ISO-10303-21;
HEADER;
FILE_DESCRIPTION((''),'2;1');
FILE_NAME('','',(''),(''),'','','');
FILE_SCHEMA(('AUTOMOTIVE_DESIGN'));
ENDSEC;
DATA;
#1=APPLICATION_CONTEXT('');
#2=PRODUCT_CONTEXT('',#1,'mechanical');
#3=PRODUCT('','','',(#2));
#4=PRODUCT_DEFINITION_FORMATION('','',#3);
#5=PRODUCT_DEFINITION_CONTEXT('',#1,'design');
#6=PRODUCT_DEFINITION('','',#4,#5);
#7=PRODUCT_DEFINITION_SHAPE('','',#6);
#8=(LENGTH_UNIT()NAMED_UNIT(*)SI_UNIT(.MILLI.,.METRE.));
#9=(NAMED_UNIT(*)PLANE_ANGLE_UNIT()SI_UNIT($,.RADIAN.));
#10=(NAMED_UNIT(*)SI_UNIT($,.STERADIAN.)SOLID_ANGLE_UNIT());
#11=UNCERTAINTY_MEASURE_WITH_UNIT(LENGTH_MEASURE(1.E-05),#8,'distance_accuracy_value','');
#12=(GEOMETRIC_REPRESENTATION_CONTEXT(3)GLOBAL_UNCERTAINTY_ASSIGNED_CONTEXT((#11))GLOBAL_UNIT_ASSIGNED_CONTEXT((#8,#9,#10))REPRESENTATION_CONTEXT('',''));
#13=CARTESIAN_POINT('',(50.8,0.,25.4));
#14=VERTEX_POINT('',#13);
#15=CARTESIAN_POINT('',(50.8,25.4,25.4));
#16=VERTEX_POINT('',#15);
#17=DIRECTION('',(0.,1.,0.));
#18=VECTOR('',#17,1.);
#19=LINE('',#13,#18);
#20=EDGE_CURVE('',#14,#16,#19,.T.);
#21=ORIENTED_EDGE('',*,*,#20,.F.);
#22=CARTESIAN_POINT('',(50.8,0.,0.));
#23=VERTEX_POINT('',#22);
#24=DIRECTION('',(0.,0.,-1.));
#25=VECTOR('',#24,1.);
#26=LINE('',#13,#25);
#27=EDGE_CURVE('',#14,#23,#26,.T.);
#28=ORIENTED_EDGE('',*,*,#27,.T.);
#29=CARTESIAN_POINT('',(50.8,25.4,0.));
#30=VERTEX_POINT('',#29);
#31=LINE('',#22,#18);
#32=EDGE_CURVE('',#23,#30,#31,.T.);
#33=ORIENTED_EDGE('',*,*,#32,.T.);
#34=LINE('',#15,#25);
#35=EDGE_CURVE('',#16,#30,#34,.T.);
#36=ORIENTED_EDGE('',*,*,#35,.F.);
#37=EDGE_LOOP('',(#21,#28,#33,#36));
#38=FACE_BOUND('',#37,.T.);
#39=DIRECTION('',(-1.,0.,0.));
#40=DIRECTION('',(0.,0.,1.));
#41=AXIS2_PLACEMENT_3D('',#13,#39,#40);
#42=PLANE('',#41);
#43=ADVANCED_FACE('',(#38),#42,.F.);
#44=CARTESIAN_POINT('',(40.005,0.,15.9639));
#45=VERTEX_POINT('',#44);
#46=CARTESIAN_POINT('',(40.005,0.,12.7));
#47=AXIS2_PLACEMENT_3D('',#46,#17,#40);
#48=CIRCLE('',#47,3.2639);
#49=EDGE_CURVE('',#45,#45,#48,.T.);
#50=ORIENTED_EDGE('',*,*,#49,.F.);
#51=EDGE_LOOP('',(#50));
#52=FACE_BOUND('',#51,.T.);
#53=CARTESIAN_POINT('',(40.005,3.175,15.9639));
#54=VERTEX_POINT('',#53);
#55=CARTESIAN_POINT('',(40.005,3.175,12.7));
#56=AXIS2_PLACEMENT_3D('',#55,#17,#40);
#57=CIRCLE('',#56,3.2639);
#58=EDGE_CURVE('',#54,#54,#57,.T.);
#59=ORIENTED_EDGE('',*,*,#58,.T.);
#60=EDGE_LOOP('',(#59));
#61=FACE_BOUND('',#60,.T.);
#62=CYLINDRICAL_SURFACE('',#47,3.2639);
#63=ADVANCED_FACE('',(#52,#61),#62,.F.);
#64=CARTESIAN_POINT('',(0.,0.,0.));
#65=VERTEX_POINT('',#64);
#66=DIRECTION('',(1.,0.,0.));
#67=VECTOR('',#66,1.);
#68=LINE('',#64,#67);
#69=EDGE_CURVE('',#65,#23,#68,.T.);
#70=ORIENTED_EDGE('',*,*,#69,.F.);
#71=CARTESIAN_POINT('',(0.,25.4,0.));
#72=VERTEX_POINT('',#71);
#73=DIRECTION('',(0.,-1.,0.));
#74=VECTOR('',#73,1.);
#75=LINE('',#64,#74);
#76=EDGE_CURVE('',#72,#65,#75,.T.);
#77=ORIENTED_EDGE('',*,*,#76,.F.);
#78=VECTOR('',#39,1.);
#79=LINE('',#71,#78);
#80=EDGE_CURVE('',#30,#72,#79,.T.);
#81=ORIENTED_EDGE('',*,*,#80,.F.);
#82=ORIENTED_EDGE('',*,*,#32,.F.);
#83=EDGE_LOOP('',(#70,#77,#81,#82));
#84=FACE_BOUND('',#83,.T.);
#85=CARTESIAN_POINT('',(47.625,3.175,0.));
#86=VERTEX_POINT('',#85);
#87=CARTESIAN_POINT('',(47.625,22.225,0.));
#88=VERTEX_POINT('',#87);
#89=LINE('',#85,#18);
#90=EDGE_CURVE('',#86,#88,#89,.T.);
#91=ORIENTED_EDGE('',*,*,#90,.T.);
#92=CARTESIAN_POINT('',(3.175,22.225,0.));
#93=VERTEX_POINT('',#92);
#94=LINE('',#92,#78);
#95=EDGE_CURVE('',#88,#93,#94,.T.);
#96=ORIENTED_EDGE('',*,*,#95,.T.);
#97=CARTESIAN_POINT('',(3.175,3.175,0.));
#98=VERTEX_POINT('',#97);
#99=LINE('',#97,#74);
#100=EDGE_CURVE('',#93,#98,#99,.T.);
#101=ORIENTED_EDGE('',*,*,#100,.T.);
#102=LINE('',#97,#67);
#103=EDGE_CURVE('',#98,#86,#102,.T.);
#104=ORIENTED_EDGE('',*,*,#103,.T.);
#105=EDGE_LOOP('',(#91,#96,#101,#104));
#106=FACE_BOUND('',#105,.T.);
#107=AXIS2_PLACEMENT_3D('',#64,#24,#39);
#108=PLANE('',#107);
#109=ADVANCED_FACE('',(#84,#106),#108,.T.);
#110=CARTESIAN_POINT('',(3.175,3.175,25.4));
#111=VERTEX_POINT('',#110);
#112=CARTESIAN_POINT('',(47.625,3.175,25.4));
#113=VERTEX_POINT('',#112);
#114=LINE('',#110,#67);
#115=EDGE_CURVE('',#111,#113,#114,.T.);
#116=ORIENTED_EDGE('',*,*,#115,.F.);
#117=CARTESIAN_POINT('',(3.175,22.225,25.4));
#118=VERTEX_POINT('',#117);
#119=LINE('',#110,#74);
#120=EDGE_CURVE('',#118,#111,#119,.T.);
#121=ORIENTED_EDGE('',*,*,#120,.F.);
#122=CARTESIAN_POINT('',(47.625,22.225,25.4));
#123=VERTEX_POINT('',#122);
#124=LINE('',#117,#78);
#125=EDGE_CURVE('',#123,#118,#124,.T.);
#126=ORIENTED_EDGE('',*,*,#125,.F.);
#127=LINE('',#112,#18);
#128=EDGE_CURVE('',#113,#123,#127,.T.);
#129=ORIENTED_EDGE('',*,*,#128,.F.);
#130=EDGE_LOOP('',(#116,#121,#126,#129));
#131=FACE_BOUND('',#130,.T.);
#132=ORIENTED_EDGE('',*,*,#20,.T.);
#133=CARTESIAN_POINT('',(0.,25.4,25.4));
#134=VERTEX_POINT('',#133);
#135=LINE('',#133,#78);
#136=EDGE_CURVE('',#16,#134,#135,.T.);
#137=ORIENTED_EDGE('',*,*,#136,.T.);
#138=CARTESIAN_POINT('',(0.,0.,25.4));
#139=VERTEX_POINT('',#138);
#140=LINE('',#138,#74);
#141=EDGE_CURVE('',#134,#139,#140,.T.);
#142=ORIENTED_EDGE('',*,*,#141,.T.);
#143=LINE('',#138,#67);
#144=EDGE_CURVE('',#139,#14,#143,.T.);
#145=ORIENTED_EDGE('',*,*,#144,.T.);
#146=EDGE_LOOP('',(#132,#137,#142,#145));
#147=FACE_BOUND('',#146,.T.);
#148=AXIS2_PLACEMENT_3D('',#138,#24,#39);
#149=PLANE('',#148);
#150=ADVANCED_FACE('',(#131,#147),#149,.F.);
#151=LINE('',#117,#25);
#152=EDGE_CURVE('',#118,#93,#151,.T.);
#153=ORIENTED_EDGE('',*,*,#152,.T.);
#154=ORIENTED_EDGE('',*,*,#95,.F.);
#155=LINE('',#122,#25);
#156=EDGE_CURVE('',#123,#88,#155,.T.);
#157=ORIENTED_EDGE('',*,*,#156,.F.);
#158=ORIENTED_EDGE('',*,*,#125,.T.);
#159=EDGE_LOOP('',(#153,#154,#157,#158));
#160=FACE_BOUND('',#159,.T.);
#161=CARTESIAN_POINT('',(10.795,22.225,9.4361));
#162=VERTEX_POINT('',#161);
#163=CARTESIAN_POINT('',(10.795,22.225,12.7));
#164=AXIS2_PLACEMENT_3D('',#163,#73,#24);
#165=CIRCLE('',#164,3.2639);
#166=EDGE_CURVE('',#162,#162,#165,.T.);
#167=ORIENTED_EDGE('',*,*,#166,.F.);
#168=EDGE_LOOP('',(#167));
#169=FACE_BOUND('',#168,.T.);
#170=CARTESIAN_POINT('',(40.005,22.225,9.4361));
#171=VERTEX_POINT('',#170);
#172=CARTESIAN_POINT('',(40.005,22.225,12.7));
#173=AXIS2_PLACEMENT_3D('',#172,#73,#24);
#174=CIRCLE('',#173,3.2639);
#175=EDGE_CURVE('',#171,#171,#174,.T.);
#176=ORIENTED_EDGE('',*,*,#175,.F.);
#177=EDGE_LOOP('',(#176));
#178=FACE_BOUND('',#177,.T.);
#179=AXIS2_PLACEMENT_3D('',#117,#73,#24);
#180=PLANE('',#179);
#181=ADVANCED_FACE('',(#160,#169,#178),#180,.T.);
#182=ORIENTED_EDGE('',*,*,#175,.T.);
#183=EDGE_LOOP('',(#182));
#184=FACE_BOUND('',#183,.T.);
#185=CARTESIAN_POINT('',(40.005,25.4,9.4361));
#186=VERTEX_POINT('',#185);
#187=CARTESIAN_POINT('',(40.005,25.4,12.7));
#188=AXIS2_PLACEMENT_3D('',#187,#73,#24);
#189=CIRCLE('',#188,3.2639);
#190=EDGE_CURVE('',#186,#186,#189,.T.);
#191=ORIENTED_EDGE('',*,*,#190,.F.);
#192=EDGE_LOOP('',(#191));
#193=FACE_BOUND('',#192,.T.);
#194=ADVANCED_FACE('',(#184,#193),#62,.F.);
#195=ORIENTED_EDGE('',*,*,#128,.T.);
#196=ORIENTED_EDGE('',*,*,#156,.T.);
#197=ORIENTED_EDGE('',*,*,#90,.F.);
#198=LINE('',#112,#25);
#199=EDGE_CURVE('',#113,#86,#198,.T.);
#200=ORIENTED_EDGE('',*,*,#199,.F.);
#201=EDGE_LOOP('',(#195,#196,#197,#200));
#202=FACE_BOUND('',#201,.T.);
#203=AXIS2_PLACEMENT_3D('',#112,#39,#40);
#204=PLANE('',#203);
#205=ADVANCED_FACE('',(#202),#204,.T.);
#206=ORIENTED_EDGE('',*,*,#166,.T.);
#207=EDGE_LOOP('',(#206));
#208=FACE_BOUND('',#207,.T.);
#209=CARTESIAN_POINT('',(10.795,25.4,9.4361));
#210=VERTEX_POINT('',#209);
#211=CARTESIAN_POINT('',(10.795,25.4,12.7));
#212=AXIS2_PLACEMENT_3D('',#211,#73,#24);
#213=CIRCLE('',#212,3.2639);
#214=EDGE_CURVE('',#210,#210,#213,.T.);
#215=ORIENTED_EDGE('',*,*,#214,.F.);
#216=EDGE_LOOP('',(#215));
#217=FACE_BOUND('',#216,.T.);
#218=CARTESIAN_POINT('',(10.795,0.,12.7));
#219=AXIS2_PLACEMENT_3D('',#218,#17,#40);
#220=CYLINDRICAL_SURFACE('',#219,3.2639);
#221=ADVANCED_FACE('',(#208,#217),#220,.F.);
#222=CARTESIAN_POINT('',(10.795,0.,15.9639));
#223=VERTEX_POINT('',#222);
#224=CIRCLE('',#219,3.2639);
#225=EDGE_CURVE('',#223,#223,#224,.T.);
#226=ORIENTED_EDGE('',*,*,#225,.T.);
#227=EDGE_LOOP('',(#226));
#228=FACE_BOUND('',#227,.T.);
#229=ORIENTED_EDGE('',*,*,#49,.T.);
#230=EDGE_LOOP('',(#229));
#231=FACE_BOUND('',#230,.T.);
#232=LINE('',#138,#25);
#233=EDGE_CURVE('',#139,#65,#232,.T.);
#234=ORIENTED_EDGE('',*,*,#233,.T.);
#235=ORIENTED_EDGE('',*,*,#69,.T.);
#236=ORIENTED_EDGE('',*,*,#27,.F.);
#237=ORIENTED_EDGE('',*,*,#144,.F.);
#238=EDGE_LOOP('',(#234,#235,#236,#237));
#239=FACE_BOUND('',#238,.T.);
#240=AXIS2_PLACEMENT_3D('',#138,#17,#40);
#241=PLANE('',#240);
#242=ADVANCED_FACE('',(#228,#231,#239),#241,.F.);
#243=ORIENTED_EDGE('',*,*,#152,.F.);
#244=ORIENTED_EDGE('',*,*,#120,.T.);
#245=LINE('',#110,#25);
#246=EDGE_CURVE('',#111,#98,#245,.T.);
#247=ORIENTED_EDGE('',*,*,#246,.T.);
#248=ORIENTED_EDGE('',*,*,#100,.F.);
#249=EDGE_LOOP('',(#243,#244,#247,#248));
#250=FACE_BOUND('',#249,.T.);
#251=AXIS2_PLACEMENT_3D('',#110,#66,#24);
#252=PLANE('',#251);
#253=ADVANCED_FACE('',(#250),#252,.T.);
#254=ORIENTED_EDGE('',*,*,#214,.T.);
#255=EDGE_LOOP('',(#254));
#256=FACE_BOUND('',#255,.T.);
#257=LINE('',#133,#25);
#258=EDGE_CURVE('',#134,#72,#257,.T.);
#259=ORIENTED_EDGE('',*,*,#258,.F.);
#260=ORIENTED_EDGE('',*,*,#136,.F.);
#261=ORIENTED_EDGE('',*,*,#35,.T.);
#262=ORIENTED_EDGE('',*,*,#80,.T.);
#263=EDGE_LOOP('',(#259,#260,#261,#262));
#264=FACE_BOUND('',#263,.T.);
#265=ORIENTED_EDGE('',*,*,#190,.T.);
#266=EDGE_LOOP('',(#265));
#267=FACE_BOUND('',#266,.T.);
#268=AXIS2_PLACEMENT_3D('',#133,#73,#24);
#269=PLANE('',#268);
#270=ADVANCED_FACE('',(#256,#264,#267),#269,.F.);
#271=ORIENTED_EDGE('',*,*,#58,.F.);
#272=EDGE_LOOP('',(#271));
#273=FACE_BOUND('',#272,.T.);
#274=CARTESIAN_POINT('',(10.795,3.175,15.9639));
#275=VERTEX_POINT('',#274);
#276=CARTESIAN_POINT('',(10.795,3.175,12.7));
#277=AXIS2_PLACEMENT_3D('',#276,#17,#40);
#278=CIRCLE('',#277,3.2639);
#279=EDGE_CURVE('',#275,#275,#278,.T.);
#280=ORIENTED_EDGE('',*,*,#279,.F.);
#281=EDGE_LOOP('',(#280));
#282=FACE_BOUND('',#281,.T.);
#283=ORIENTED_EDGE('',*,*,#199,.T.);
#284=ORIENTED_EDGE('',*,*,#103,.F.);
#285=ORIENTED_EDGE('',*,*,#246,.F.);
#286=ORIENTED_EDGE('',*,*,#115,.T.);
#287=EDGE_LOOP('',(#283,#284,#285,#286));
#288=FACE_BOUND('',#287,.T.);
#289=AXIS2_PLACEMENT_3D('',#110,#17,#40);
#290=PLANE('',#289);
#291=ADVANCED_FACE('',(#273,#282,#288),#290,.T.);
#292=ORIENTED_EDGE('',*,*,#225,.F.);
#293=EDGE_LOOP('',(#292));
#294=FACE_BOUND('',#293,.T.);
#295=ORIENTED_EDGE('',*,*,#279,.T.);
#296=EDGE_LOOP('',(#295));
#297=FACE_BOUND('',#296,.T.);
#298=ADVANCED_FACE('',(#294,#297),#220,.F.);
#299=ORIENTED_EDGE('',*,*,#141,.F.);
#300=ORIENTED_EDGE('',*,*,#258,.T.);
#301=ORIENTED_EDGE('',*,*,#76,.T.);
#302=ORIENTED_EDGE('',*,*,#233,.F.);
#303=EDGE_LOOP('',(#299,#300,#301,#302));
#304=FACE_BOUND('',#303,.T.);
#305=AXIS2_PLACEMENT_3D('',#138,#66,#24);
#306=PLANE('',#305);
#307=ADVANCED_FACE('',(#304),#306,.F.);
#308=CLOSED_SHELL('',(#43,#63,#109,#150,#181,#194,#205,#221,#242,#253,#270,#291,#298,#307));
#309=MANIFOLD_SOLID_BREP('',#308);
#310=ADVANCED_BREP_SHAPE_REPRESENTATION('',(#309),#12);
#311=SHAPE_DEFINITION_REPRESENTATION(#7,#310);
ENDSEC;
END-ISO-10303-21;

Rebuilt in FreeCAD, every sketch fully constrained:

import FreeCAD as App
import Part
import Sketcher
from FreeCAD import Vector
Q = App.Units.Quantity


def add_polygon(sketch, points):
    """Adds a closed chain of lines whose ends are joined by coincident constraints."""
    first, n = sketch.GeometryCount, len(points)
    for a, b in zip(points, points[1:] + points[:1]):
        sketch.addGeometry(Part.LineSegment(App.Vector(*a, 0), App.Vector(*b, 0)), False)
    for i in range(n):
        sketch.addConstraint(Sketcher.Constraint("Coincident", first + i, 2, first + (i + 1) % n, 1))

doc = App.newDocument("Part")
params = doc.addObject("Spreadsheet::Sheet", "Params")
for row, (alias, value) in enumerate([
    ("sketch1_width", "2 in"),
    ("sketch1_height", "1 in"),
    ("sketch1_width2", "1.75 in"),
    ("sketch1_height2", "0.75 in"),
    ("pad1_length", "1 in"),
    ("sketch2_diameter", "0.257 in"),
], start=1):
    params.set(f"A{row}", alias)
    params.set(f"B{row}", "=" + value)
    params.setAlias(f"B{row}", alias)

body = doc.addObject("PartDesign::Body", "Body")

# Sketch on XY plane
sketch1 = body.newObject("Sketcher::SketchObject", "Sketch")
sketch1.AttachmentSupport = (doc.getObject("XY_Plane"), [""])
sketch1.MapMode = "FlatFace"
add_polygon(sketch1, [(0, 25), (0, 0), (51, 0), (51, 25)])  # lines 0-3
add_polygon(sketch1, [(48, 3), (3, 3), (3, 22), (48, 22)])  # lines 4-7
sketch1.addConstraint([
    Sketcher.Constraint("Vertical", 0),
    Sketcher.Constraint("Horizontal", 1),
    Sketcher.Constraint("Vertical", 2),
    Sketcher.Constraint("Horizontal", 3),
    Sketcher.Constraint("Horizontal", 4),
    Sketcher.Constraint("Vertical", 5),
    Sketcher.Constraint("Horizontal", 6),
    Sketcher.Constraint("Vertical", 7),
    Sketcher.Constraint("Coincident", 0, 2, -1, 1),
    Sketcher.Constraint("DistanceX", 1, 1, 1, 2, Q("2 in")),
    Sketcher.Constraint("DistanceY", 0, 2, 0, 1, Q("1 in")),
    Sketcher.Constraint("DistanceX", 4, 2, 4, 1, Q("1.75 in")),
    Sketcher.Constraint("DistanceY", 5, 1, 5, 2, Q("0.75 in")),
    Sketcher.Constraint("DistanceX", -1, 1, 4, 2, Q("0.125 in")),
    Sketcher.Constraint("DistanceY", -1, 1, 4, 2, Q("0.125 in")),
])
sketch1.setExpression("Constraints[17]", "Params.sketch1_width")
sketch1.setExpression("Constraints[18]", "Params.sketch1_height")
sketch1.setExpression("Constraints[19]", "Params.sketch1_width2")
sketch1.setExpression("Constraints[20]", "Params.sketch1_height2")
pad1 = body.newObject("PartDesign::Pad", "Pad")
pad1.Profile = sketch1
pad1.setExpression("Length", "Params.pad1_length")

# Sketch on XZ plane
sketch2 = body.newObject("Sketcher::SketchObject", "Sketch001")
sketch2.AttachmentSupport = (doc.getObject("XZ_Plane"), [""])
sketch2.MapMode = "FlatFace"
sketch2.AttachmentOffset = App.Placement(Vector(0, 0, -1 * 25.4), App.Rotation())
sketch2.addGeometry([
    Part.Circle(Vector(10.8, 12.7, 0), Vector(0, 0, 1), 3.3),
    Part.Circle(Vector(40, 12.7, 0), Vector(0, 0, 1), 3.3),
], False)
sketch2.addConstraint([
    Sketcher.Constraint("Equal", 0, 1),
    Sketcher.Constraint("Horizontal", 0, 3, 1, 3),
    Sketcher.Constraint("Diameter", 0, Q("0.257 in")),
    Sketcher.Constraint("DistanceY", -1, 1, 0, 3, Q("0.5 in")),
    Sketcher.Constraint("DistanceX", 0, 3, 1, 3, Q("1.15 in")),
    Sketcher.Constraint("DistanceX", -1, 1, 0, 3, Q("0.425 in")),
])
sketch2.setExpression("Constraints[2]", "Params.sketch2_diameter")
pocket1 = body.newObject("PartDesign::Pocket", "Pocket")
pocket1.Profile = sketch2
pocket1.Type = "ThroughAll"
pocket1.Midplane = True

doc.recompute()
